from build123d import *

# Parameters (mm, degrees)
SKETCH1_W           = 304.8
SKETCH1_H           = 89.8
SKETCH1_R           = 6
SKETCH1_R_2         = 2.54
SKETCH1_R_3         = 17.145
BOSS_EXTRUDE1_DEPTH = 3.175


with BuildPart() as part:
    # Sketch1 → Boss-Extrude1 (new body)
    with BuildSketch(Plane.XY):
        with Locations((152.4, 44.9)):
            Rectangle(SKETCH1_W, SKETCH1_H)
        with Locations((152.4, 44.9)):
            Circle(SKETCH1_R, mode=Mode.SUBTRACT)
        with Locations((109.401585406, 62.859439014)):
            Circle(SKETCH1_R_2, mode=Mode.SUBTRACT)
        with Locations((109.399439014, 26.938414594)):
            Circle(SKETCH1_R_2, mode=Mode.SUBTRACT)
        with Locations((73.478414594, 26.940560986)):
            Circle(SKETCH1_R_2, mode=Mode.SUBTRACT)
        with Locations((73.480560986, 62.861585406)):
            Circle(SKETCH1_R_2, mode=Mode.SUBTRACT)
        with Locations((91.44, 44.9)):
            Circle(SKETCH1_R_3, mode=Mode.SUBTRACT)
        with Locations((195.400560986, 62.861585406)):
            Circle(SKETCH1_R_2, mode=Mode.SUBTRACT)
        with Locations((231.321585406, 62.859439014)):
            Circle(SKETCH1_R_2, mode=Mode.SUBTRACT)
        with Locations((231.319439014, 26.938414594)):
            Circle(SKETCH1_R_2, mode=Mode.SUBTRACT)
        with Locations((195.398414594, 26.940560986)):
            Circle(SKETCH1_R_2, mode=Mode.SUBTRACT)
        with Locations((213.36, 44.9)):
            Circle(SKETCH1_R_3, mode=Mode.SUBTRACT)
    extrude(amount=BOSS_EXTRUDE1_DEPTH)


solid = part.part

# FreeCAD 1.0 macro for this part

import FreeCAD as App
import Part
import Sketcher
Q = App.Units.Quantity


def add_polygon(sketch, points):
    """Adds a closed chain of lines whose ends are joined by coincident constraints."""
    first, n = sketch.GeometryCount, len(points)
    for a, b in zip(points, points[1:] + points[:1]):
        sketch.addGeometry(Part.LineSegment(App.Vector(*a, 0), App.Vector(*b, 0)), False)
    for i in range(n):
        sketch.addConstraint(Sketcher.Constraint("Coincident", first + i, 2, first + (i + 1) % n, 1))

doc = App.newDocument("Part")
body = doc.addObject("PartDesign::Body", "Body")

sketch1 = body.newObject("Sketcher::SketchObject", "Sketch")
sketch1.AttachmentSupport = (doc.getObject("XY_Plane"), [""])
sketch1.MapMode = "FlatFace"
add_polygon(sketch1, [(0, 89.8), (0, 0), (304.8, 0), (304.8, 89.8)])
sketch1.addGeometry(Part.Circle(App.Vector(73.478415, 26.940561, 0), App.Vector(0, 0, 1), 2.54), False)
sketch1.addGeometry(Part.Circle(App.Vector(109.399439, 26.938415, 0), App.Vector(0, 0, 1), 2.54), False)
sketch1.addGeometry(Part.Circle(App.Vector(91.44, 44.9, 0), App.Vector(0, 0, 1), 17.145), False)
sketch1.addGeometry(Part.Circle(App.Vector(195.398415, 26.940561, 0), App.Vector(0, 0, 1), 2.54), False)
sketch1.addGeometry(Part.Circle(App.Vector(231.319439, 26.938415, 0), App.Vector(0, 0, 1), 2.54), False)
sketch1.addGeometry(Part.Circle(App.Vector(152.4, 44.9, 0), App.Vector(0, 0, 1), 6), False)
sketch1.addGeometry(Part.Circle(App.Vector(213.36, 44.9, 0), App.Vector(0, 0, 1), 17.145), False)
sketch1.addGeometry(Part.Circle(App.Vector(73.480561, 62.861585, 0), App.Vector(0, 0, 1), 2.54), False)
sketch1.addGeometry(Part.Circle(App.Vector(109.401585, 62.859439, 0), App.Vector(0, 0, 1), 2.54), False)
sketch1.addGeometry(Part.Circle(App.Vector(195.400561, 62.861585, 0), App.Vector(0, 0, 1), 2.54), False)
sketch1.addGeometry(Part.Circle(App.Vector(231.321585, 62.859439, 0), App.Vector(0, 0, 1), 2.54), False)
sketch1.addConstraint(Sketcher.Constraint("Vertical", 0))
sketch1.addConstraint(Sketcher.Constraint("Horizontal", 1))
sketch1.addConstraint(Sketcher.Constraint("Vertical", 2))
sketch1.addConstraint(Sketcher.Constraint("Horizontal", 3))
sketch1.addConstraint(Sketcher.Constraint("Coincident", 0, 2, -1, 1))
sketch1.addConstraint(Sketcher.Constraint("Equal", 4, 5))
sketch1.addConstraint(Sketcher.Constraint("Equal", 5, 7))
sketch1.addConstraint(Sketcher.Constraint("Equal", 7, 8))
sketch1.addConstraint(Sketcher.Constraint("Equal", 6, 10))
sketch1.addConstraint(Sketcher.Constraint("Equal", 8, 11))
sketch1.addConstraint(Sketcher.Constraint("Equal", 11, 12))
sketch1.addConstraint(Sketcher.Constraint("Equal", 12, 13))
sketch1.addConstraint(Sketcher.Constraint("Equal", 13, 14))
sketch1.addConstraint(Sketcher.Constraint("Horizontal", 4, 3, 7, 3))
sketch1.addConstraint(Sketcher.Constraint("Horizontal", 5, 3, 8, 3))
sketch1.addConstraint(Sketcher.Constraint("Horizontal", 6, 3, 9, 3))
sketch1.addConstraint(Sketcher.Constraint("Horizontal", 9, 3, 10, 3))
sketch1.addConstraint(Sketcher.Constraint("Horizontal", 11, 3, 13, 3))
sketch1.addConstraint(Sketcher.Constraint("Horizontal", 12, 3, 14, 3))
sketch1.addConstraint(Sketcher.Constraint("Diameter", 4, Q("0.2 in")))
sketch1.addConstraint(Sketcher.Constraint("Diameter", 6, Q("1.35 in")))
sketch1.addConstraint(Sketcher.Constraint("DistanceX", 1, 1, 1, 2, Q("12 in")))
sketch1.addConstraint(Sketcher.Constraint("DistanceX", -1, 1, 9, 3, Q("6 in")))
sketch1.addConstraint(Sketcher.Constraint("DistanceX", -1, 1, 6, 3, Q("3.6 in")))
sketch1.addConstraint(Sketcher.Constraint("DistanceX", -1, 1, 10, 3, Q("8.4 in")))
sketch1.addConstraint(Sketcher.Constraint("DistanceX", 4, 3, 7, 3, Q("4.8 in")))
sketch1.addConstraint(Sketcher.Constraint("DistanceX", 5, 3, 8, 3, Q("4.8 in")))
sketch1.addConstraint(Sketcher.Constraint("Diameter", 9, 12.0))
sketch1.addConstraint(Sketcher.Constraint("DistanceY", 0, 2, 0, 1, 89.8))
sketch1.addConstraint(Sketcher.Constraint("DistanceY", -1, 1, 6, 3, 44.9))
sketch1.addConstraint(Sketcher.Constraint("DistanceY", -1, 1, 4, 3, 26.940561))
sketch1.addConstraint(Sketcher.Constraint("DistanceX", -1, 1, 5, 3, 109.399439))
sketch1.addConstraint(Sketcher.Constraint("DistanceX", -1, 1, 11, 3, 73.480561))
sketch1.addConstraint(Sketcher.Constraint("DistanceY", -1, 1, 12, 3, 62.859439))
sketch1.addConstraint(Sketcher.Constraint("DistanceX", -1, 1, 13, 3, 195.400561))
sketch1.addConstraint(Sketcher.Constraint("DistanceY", 5, 3, 11, 3, 35.923171))
sketch1.addConstraint(Sketcher.Constraint("DistanceX", 4, 3, 12, 3, 35.923171))
sketch1.addConstraint(Sketcher.Constraint("DistanceX", 7, 3, 14, 3, 35.923171))
sketch1.addConstraint(Sketcher.Constraint("DistanceX", -1, 1, 4, 3, 73.478415))
sketch1.addConstraint(Sketcher.Constraint("DistanceY", -1, 1, 5, 3, 26.938415))
pad1 = body.newObject("PartDesign::Pad", "Pad")
pad1.Profile = sketch1
pad1.Length = Q("0.125 in")

doc.recompute()
